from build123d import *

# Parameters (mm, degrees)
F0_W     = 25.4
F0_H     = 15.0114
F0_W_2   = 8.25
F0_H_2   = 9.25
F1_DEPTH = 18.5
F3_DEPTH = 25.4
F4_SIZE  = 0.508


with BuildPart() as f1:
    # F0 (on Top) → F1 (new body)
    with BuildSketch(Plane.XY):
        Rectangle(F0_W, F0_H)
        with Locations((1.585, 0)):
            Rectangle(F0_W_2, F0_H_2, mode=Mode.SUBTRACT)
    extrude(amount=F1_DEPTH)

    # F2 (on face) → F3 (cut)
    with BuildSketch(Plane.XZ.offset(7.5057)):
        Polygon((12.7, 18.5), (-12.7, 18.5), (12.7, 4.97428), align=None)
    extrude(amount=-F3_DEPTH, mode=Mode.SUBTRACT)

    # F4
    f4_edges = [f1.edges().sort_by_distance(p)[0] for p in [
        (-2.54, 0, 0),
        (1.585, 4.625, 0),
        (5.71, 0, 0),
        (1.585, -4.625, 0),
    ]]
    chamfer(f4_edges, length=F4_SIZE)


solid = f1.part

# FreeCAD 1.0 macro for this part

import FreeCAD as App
import Part
import Sketcher
from FreeCAD import Vector
Q = App.Units.Quantity


def edges_at(feature, points):
    """Names of the edges that pass closest to the given points."""
    edges = feature.Shape.Edges
    near = lambda p: min(range(len(edges)), key=lambda i: edges[i].distToShape(Part.Vertex(*p))[0])
    return sorted({f"Edge{near(p) + 1}" for p in points})

doc = App.newDocument("Part")
body = doc.addObject("PartDesign::Body", "Body")

# Sketch on XY plane
sketch1 = body.newObject("Sketcher::SketchObject", "Sketch")
sketch1.AttachmentSupport = (doc.getObject("XY_Plane"), [""])
sketch1.MapMode = "FlatFace"
sketch1.addGeometry([
    Part.LineSegment(Vector(-12.7, 7.5057, 0), Vector(-12.7, -7.5057, 0)),  # 0
    Part.LineSegment(Vector(-12.7, -7.5057, 0), Vector(12.7, -7.5057, 0)),  # 1
    Part.LineSegment(Vector(12.7, -7.5057, 0), Vector(12.7, 7.5057, 0)),  # 2
    Part.LineSegment(Vector(12.7, 7.5057, 0), Vector(-12.7, 7.5057, 0)),  # 3
    Part.LineSegment(Vector(5.71, -4.625, 0), Vector(-2.54, -4.625, 0)),  # 4
    Part.LineSegment(Vector(-2.54, -4.625, 0), Vector(-2.54, 4.625, 0)),  # 5
    Part.LineSegment(Vector(-2.54, 4.625, 0), Vector(5.71, 4.625, 0)),  # 6
    Part.LineSegment(Vector(5.71, 4.625, 0), Vector(5.71, -4.625, 0)),  # 7
], False)
sketch1.addConstraint([
    Sketcher.Constraint("Coincident", 0, 2, 1, 1),
    Sketcher.Constraint("Coincident", 1, 2, 2, 1),
    Sketcher.Constraint("Coincident", 2, 2, 3, 1),
    Sketcher.Constraint("Coincident", 3, 2, 0, 1),
    Sketcher.Constraint("Coincident", 4, 2, 5, 1),
    Sketcher.Constraint("Coincident", 5, 2, 6, 1),
    Sketcher.Constraint("Coincident", 6, 2, 7, 1),
    Sketcher.Constraint("Coincident", 7, 2, 4, 1),
    Sketcher.Constraint("Vertical", 0),
    Sketcher.Constraint("Horizontal", 1),
    Sketcher.Constraint("Vertical", 2),
    Sketcher.Constraint("Horizontal", 3),
    Sketcher.Constraint("Horizontal", 4),
    Sketcher.Constraint("Vertical", 5),
    Sketcher.Constraint("Horizontal", 6),
    Sketcher.Constraint("Vertical", 7),
    Sketcher.Constraint("Symmetric", 0, 2, 2, 2, -1, 1),
    Sketcher.Constraint("DistanceX", 1, 1, 1, 2, Q("1 in")),
    Sketcher.Constraint("DistanceX", 4, 2, -1, 1, Q("0.1 in")),
    Sketcher.Constraint("DistanceY", 0, 2, 0, 1, Q("0.591 in")),
    Sketcher.Constraint("DistanceX", 4, 2, 4, 1, Q("8.25 mm")),
    Sketcher.Constraint("DistanceY", 5, 1, 5, 2, Q("9.25 mm")),
    Sketcher.Constraint("DistanceY", 4, 2, -1, 1, Q("4.625 mm")),
])
pad1 = body.newObject("PartDesign::Pad", "Pad")
pad1.Profile = sketch1
pad1.Length = 18.5

# Sketch on XZ plane
sketch2 = body.newObject("Sketcher::SketchObject", "Sketch001")
sketch2.AttachmentSupport = (doc.getObject("XZ_Plane"), [""])
sketch2.MapMode = "FlatFace"
sketch2.AttachmentOffset = App.Placement(Vector(0, 0, 0.2955 * 25.4), App.Rotation())
sketch2.addGeometry([
    Part.LineSegment(Vector(12.7, 18.5, 0), Vector(-12.7, 18.5, 0)),
    Part.LineSegment(Vector(-12.7, 18.5, 0), Vector(12.7, 4.97428, 0)),
    Part.LineSegment(Vector(12.7, 4.97428, 0), Vector(12.7, 18.5, 0)),
], False)
sketch2.addConstraint([
    Sketcher.Constraint("Coincident", 0, 2, 1, 1),
    Sketcher.Constraint("Coincident", 1, 2, 2, 1),
    Sketcher.Constraint("Coincident", 2, 2, 0, 1),
    Sketcher.Constraint("Horizontal", 0),
    Sketcher.Constraint("Vertical", 2),
    Sketcher.Constraint("DistanceX", 0, 2, 0, 1, Q("1 in")),
    Sketcher.Constraint("DistanceX", 0, 2, -1, 1, Q("0.5 in")),
    Sketcher.Constraint("DistanceY", 2, 1, 2, 2, Q("13.52572 mm")),
    Sketcher.Constraint("DistanceY", -1, 1, 0, 2, Q("18.5 mm")),
])
pocket1 = body.newObject("PartDesign::Pocket", "Pocket")
pocket1.Profile = sketch2
pocket1.Length = Q("1 in")
doc.recompute()

chamfer = body.newObject("PartDesign::Chamfer", "Chamfer")
chamfer.Base = (pocket1, edges_at(pocket1, [
    (-2.54, 0, 0),
    (1.585, 4.625, 0),
    (5.71, 0, 0),
    (1.585, -4.625, 0),
]))
chamfer.Size = Q("0.02 in")

doc.recompute()
